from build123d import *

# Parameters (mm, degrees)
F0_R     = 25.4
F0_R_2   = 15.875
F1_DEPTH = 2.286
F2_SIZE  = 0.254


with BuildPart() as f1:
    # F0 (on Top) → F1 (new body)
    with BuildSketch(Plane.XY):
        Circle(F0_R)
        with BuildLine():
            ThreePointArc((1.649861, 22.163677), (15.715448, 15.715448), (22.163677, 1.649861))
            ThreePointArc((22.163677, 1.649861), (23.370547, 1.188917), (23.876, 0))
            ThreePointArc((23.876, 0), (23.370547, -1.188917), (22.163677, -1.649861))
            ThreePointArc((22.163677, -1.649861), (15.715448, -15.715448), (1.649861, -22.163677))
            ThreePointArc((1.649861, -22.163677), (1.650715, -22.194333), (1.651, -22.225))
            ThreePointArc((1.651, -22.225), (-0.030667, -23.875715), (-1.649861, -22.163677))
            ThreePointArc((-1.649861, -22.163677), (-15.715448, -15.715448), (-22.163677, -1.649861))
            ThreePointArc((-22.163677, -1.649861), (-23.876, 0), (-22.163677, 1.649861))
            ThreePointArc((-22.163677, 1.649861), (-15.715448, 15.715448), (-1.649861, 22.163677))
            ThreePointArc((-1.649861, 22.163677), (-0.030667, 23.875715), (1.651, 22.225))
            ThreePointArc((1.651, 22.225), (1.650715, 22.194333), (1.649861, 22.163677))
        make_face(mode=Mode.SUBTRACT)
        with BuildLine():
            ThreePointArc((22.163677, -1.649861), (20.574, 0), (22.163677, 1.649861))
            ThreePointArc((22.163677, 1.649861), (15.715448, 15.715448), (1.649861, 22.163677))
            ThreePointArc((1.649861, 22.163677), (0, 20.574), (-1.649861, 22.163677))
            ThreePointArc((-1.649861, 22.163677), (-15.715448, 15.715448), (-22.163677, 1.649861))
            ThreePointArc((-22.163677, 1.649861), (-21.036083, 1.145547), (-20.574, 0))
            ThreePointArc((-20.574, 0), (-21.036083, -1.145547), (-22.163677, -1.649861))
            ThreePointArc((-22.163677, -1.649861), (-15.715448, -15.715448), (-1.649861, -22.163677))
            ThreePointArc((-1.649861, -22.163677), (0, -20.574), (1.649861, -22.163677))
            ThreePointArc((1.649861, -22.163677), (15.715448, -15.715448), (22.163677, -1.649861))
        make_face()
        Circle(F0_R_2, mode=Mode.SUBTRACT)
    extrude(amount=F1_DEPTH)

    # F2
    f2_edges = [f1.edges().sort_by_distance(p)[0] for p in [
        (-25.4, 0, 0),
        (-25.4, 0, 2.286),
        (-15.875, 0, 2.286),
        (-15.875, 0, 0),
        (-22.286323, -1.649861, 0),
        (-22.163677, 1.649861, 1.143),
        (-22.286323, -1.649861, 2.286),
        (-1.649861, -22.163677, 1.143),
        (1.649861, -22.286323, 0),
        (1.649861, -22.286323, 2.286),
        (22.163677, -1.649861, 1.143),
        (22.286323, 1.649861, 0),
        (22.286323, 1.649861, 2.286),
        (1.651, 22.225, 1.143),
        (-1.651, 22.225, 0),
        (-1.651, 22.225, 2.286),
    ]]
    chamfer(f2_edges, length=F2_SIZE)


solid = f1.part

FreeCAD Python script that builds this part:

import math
import FreeCAD as App
import Part
import Sketcher
from FreeCAD import Vector
Q = App.Units.Quantity


def edges_at(feature, points):
    """Names of the edges that pass closest to the given points."""
    edges = feature.Shape.Edges
    near = lambda p: min(range(len(edges)), key=lambda i: edges[i].distToShape(Part.Vertex(*p))[0])
    return sorted({f"Edge{near(p) + 1}" for p in points})

doc = App.newDocument("Part")
params = doc.addObject("Spreadsheet::Sheet", "Params")
for row, (alias, value) in enumerate([
    ("sketch1_diameter", "2 in"),
    ("sketch1_diameter2", "1.25 in"),
    ("sketch1_radius", "0.065 in"),
    ("pad1_length", "0.09 in"),
    ("chamfer_size", "0.01 in"),
], start=1):
    params.set(f"A{row}", alias)
    params.set(f"B{row}", "=" + value)
    params.setAlias(f"B{row}", alias)

body = doc.addObject("PartDesign::Body", "Body")

sketch1 = doc.addObject("Sketcher::SketchObject", "Sketch")
body.addObject(sketch1)
sketch1.AttachmentSupport = (doc.XY_Plane, [""])
sketch1.MapMode = "FlatFace"
sketch1.addGeometry([
    Part.Circle(Vector(0, 0, 0), Vector(0, 0, 1), 25.4),
    Part.ArcOfCircle(Part.Circle(Vector(0, -22.22, 0), Vector(0, 0, 1), 1.65), math.radians(178), math.radians(360)),
    Part.ArcOfCircle(Part.Circle(Vector(0, -22.23, 0), Vector(0, 0, 1), 1.65), math.radians(2), math.radians(178)),
    Part.ArcOfCircle(Part.Circle(Vector(0, -22.23, 0), Vector(0, 0, 1), 1.65), math.radians(0), math.radians(2.13)),
    Part.ArcOfCircle(Part.Circle(Vector(-22.22, 0, 0), Vector(0, 0, 1), 1.65), math.radians(88), math.radians(272)),
    Part.ArcOfCircle(Part.Circle(Vector(-22.23, 0, 0), Vector(0, 0, 1), 1.65), math.radians(0), math.radians(88)),
    Part.ArcOfCircle(Part.Circle(Vector(-22.23, 0, 0), Vector(0, 0, 1), 1.65), math.radians(-88), math.radians(0)),
    Part.Circle(Vector(0, 0, 0), Vector(0, 0, 1), 15.88),
    Part.ArcOfCircle(Part.Circle(Vector(0, 22.23, 0), Vector(0, 0, 1), 1.65), math.radians(-2.13), math.radians(0)),
    Part.ArcOfCircle(Part.Circle(Vector(0, 22.23, 0), Vector(0, 0, 1), 1.65), math.radians(-178), math.radians(-2)),
    Part.ArcOfCircle(Part.Circle(Vector(0, 22.22, 0), Vector(0, 0, 1), 1.65), math.radians(0), math.radians(182)),
    Part.ArcOfCircle(Part.Circle(Vector(22.22, 0, 0), Vector(0, 0, 1), 1.65), math.radians(-92), math.radians(0)),
    Part.ArcOfCircle(Part.Circle(Vector(22.23, 0, 0), Vector(0, 0, 1), 1.65), math.radians(92), math.radians(268)),
    Part.ArcOfCircle(Part.Circle(Vector(22.22, 0, 0), Vector(0, 0, 1), 1.65), math.radians(0), math.radians(92)),
], False)
sketch1.addConstraint([
    Sketcher.Constraint("Tangent", 1, 1, 2, 2),
    Sketcher.Constraint("Coincident", 2, 1, 3, 2),
    Sketcher.Constraint("Coincident", 3, 1, 1, 2),
    Sketcher.Constraint("Tangent", 4, 1, 5, 2),
    Sketcher.Constraint("Tangent", 5, 1, 6, 2),
    Sketcher.Constraint("Tangent", 6, 1, 4, 2),
    Sketcher.Constraint("Coincident", 8, 1, 9, 2),
    Sketcher.Constraint("Tangent", 9, 1, 10, 2),
    Sketcher.Constraint("Coincident", 10, 1, 8, 2),
    Sketcher.Constraint("Tangent", 11, 1, 12, 2),
    Sketcher.Constraint("Tangent", 12, 1, 13, 2),
    Sketcher.Constraint("Tangent", 13, 1, 11, 2),
    Sketcher.Constraint("Coincident", 0, 3, -1, 1),
    Sketcher.Constraint("Coincident", 7, 3, -1, 1),
    Sketcher.Constraint("Equal", 1, 2),
    Sketcher.Constraint("Equal", 2, 4),
    Sketcher.Constraint("Equal", 3, 8),
    Sketcher.Constraint("Equal", 6, 9),
    Sketcher.Constraint("Equal", 9, 10),
    Sketcher.Constraint("Equal", 10, 11),
    Sketcher.Constraint("Symmetric", 1, 3, 9, 3, -1, 1),
    Sketcher.Constraint("Symmetric", 4, 3, 11, 3, -1, 1),
    Sketcher.Constraint("Symmetric", 1, 1, 2, 1, -2),
    Sketcher.Constraint("Symmetric", 6, 1, 11, 1, -2),
    Sketcher.Constraint("PointOnObject", 5, 1, -1),
    Sketcher.Constraint("PointOnObject", 13, 1, -1),
    Sketcher.Constraint("Horizontal", 2, 3, 3, 1),
    Sketcher.Constraint("Horizontal", 8, 1, 9, 1),
    Sketcher.Constraint("Horizontal", 9, 3, 10, 1),
    Sketcher.Constraint("Horizontal", 4, 1, 12, 1),
    Sketcher.Constraint("Vertical", 4, 1, 6, 1),
    Sketcher.Constraint("Vertical", 2, 1, 8, 1),
    Sketcher.Constraint("Diameter", 0, Q("2 in")),
    Sketcher.Constraint("Diameter", 7, Q("1.25 in")),
    Sketcher.Constraint("Radius", 1, Q("0.065 in")),
    Sketcher.Constraint("DistanceX", 5, 1, -1, 1, Q("0.81 in")),
    Sketcher.Constraint("DistanceY", 1, 3, -1, 1, Q("0.875 in")),
    Sketcher.Constraint("Radius", 3, 1.652649),
    Sketcher.Constraint("DistanceX", 1, 1, -1, 1, 1.649861),
    Sketcher.Constraint("DistanceY", -1, 1, 4, 1, 1.649861),
])
sketch1.setExpression("Constraints[32]", "Params.sketch1_diameter")
sketch1.setExpression("Constraints[33]", "Params.sketch1_diameter2")
sketch1.setExpression("Constraints[34]", "Params.sketch1_radius")
pad1 = doc.addObject("PartDesign::Pad", "Pad")
body.addObject(pad1)
pad1.Profile = sketch1
pad1.setExpression("Length", "Params.pad1_length")
doc.recompute()

chamfer = doc.addObject("PartDesign::Chamfer", "Chamfer")
body.addObject(chamfer)
chamfer.Base = (pad1, edges_at(pad1, [
    (-25.4, 0, 0),
    (-25.4, 0, 2.286),
    (-15.875, 0, 2.286),
    (-15.875, 0, 0),
    (-23.876, 0, 0),
    (-22.164, 1.65, 1.143),
    (-23.876, 0, 2.286),
    (-1.65, -22.164, 1.143),
    (-0.031, -23.876, 0),
    (-0.031, -23.876, 2.286),
    (22.164, -1.65, 1.143),
    (23.371, 1.189, 0),
    (23.371, 1.189, 2.286),
    (1.651, 22.225, 1.143),
    (-0.031, 23.876, 0),
    (-0.031, 23.876, 2.286),
]))
chamfer.setExpression("Size", "Params.chamfer_size")

doc.recompute()
